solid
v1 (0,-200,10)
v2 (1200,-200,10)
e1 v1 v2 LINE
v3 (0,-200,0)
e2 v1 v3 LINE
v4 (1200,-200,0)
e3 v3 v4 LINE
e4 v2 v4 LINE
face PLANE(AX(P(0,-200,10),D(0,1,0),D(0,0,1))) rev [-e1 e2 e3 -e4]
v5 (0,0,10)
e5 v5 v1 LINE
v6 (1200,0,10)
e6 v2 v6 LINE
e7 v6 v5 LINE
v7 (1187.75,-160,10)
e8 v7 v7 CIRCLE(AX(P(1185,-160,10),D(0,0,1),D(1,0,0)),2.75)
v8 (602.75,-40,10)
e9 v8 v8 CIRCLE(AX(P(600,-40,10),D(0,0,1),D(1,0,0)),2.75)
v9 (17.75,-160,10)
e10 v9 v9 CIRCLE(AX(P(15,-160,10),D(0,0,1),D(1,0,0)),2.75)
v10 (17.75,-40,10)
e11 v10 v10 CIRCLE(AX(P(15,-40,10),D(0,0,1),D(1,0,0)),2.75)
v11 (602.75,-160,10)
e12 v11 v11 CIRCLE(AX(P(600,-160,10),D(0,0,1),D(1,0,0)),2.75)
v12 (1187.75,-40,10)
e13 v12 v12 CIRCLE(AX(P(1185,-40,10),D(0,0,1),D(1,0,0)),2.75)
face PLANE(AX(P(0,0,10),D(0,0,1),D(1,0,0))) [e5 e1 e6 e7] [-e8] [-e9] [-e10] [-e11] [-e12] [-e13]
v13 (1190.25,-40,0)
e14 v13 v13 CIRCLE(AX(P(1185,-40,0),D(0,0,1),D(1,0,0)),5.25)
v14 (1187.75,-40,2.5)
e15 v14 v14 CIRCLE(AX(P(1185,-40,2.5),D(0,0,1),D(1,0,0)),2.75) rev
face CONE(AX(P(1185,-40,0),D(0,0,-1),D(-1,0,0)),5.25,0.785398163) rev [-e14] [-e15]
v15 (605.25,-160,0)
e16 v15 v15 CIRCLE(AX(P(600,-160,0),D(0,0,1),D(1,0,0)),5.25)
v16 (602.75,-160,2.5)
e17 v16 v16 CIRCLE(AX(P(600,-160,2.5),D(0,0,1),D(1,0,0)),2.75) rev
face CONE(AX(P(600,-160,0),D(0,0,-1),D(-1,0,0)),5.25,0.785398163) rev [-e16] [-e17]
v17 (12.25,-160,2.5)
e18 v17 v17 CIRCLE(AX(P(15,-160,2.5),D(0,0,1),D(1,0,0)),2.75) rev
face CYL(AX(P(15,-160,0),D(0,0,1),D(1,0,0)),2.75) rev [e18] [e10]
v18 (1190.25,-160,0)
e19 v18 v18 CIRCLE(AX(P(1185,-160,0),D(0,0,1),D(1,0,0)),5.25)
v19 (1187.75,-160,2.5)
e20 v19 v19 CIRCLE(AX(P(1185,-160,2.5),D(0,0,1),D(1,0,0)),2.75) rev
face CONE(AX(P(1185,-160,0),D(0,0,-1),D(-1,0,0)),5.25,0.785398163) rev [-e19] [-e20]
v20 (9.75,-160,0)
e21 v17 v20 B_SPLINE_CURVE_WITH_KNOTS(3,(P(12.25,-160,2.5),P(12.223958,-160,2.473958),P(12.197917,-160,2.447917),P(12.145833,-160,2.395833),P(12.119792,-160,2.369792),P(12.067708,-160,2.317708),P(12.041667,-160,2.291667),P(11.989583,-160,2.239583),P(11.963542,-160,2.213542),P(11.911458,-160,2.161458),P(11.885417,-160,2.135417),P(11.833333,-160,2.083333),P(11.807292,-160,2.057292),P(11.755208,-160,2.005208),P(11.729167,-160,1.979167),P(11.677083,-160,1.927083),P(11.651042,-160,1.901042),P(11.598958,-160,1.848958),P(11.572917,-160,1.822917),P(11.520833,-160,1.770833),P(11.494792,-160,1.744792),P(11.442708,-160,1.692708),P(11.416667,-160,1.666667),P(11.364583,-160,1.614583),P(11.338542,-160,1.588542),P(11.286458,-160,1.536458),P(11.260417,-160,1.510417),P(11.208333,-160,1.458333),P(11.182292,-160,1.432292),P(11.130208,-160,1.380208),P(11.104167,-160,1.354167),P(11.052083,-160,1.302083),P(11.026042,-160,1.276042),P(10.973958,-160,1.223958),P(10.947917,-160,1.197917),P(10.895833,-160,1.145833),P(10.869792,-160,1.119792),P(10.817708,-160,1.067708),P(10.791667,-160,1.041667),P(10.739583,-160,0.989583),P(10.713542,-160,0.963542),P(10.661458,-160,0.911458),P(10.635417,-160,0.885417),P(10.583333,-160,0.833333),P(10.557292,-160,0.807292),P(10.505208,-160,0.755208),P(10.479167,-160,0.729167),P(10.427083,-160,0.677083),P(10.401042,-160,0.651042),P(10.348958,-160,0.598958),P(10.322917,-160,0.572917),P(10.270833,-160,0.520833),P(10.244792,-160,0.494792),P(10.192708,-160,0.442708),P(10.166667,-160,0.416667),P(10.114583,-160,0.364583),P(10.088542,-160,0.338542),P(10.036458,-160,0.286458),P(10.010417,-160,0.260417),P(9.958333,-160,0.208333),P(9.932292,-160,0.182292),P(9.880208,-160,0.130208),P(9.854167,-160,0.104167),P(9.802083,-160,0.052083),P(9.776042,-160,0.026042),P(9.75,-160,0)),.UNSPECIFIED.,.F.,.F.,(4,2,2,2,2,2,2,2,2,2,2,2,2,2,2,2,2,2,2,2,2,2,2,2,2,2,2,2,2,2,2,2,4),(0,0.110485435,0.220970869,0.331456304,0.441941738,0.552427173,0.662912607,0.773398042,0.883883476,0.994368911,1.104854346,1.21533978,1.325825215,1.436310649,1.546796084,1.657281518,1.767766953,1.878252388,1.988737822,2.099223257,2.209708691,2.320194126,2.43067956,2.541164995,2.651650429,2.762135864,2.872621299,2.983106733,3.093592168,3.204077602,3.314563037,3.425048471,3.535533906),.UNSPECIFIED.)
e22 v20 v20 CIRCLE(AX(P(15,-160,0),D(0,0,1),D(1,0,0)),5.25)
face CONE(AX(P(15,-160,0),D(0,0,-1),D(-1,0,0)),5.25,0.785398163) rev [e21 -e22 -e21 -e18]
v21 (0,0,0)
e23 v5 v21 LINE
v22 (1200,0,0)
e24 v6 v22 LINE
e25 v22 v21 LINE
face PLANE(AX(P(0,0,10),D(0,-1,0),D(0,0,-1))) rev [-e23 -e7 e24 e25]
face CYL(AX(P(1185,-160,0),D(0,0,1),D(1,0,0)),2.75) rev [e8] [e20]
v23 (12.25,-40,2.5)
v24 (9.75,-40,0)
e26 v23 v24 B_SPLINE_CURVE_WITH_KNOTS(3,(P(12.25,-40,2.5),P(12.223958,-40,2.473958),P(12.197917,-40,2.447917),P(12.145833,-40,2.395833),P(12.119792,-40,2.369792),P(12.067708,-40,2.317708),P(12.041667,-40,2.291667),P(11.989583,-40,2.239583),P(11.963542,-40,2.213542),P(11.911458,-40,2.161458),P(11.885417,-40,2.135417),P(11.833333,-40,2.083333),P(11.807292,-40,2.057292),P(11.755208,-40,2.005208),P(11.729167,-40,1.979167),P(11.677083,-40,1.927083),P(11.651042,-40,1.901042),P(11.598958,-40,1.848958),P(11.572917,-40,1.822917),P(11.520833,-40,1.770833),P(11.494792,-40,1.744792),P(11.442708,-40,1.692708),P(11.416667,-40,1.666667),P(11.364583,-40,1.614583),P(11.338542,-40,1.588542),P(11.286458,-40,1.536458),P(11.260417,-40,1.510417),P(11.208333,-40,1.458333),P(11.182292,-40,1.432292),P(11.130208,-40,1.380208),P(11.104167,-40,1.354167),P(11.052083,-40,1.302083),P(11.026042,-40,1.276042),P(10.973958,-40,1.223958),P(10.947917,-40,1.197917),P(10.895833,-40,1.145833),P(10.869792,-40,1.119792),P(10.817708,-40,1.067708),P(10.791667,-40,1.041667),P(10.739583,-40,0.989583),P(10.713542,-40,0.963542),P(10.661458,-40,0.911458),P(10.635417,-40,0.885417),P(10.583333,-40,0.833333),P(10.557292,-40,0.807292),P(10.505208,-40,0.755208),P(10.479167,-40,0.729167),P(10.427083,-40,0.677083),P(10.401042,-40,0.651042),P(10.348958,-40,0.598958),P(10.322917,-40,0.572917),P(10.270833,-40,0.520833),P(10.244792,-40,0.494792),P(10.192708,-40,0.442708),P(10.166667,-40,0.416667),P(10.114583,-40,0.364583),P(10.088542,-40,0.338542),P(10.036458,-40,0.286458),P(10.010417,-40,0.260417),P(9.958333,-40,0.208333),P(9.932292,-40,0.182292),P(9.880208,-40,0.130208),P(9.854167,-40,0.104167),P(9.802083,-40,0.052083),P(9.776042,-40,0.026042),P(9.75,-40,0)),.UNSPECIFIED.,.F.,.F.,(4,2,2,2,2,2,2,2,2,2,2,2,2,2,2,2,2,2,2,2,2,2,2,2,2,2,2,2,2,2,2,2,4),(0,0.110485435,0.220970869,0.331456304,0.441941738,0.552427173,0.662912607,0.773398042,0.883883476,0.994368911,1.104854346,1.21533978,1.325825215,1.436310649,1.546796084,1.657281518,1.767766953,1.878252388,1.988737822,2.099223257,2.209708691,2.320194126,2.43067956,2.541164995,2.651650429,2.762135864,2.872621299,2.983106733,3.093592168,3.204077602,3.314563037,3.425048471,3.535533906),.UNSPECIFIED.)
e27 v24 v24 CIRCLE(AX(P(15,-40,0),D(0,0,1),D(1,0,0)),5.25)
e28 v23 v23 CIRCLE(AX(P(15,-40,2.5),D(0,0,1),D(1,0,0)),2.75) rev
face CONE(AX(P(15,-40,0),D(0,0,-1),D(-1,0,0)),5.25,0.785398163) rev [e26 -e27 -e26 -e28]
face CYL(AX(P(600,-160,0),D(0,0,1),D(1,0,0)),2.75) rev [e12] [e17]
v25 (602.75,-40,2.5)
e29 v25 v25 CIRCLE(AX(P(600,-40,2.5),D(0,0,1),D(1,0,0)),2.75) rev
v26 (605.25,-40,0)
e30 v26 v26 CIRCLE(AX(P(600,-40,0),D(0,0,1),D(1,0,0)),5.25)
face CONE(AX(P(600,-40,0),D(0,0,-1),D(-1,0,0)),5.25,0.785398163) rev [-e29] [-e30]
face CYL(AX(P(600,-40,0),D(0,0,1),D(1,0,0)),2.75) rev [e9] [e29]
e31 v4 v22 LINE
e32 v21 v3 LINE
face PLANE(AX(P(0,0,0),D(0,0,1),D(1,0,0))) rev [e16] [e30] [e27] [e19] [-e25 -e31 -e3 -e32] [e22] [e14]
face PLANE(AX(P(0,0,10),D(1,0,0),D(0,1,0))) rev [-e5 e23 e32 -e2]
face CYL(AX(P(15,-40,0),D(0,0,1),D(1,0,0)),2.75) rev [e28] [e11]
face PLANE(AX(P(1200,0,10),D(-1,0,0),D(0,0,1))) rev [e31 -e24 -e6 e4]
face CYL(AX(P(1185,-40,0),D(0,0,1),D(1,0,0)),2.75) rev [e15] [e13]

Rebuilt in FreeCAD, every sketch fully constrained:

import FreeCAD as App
import Part
import Sketcher


def edges_at(feature, points):
    """Names of the edges that pass closest to the given points."""
    edges = feature.Shape.Edges
    near = lambda p: min(range(len(edges)), key=lambda i: edges[i].distToShape(Part.Vertex(*p))[0])
    return sorted({f"Edge{near(p) + 1}" for p in points})


def add_polygon(sketch, points):
    """Adds a closed chain of lines whose ends are joined by coincident constraints."""
    first, n = sketch.GeometryCount, len(points)
    for a, b in zip(points, points[1:] + points[:1]):
        sketch.addGeometry(Part.LineSegment(App.Vector(*a, 0), App.Vector(*b, 0)), False)
    for i in range(n):
        sketch.addConstraint(Sketcher.Constraint("Coincident", first + i, 2, first + (i + 1) % n, 1))

doc = App.newDocument("Part")
body = doc.addObject("PartDesign::Body", "Body")

sketch1 = body.newObject("Sketcher::SketchObject", "Sketch")
sketch1.AttachmentSupport = (doc.getObject("XY_Plane"), [""])
sketch1.MapMode = "FlatFace"
add_polygon(sketch1, [(0, 0), (0, -200), (1200, -200), (1200, 0)])
sketch1.addConstraint(Sketcher.Constraint("Vertical", 0))
sketch1.addConstraint(Sketcher.Constraint("Horizontal", 1))
sketch1.addConstraint(Sketcher.Constraint("Vertical", 2))
sketch1.addConstraint(Sketcher.Constraint("Horizontal", 3))
sketch1.addConstraint(Sketcher.Constraint("Coincident", 3, 2, -1, 1))
sketch1.addConstraint(Sketcher.Constraint("DistanceX", 1, 1, 1, 2, 1200.0))
sketch1.addConstraint(Sketcher.Constraint("DistanceY", 0, 2, 0, 1, 200.0))
pad1 = body.newObject("PartDesign::Pad", "Pad")
pad1.Profile = sketch1
pad1.Length = 10

sketch2 = body.newObject("Sketcher::SketchObject", "Sketch001")
sketch2.AttachmentSupport = (doc.getObject("XY_Plane"), [""])
sketch2.MapMode = "FlatFace"
sketch2.AttachmentOffset = App.Placement(App.Vector(0, 0, 10), App.Rotation())
sketch2.addGeometry(Part.Circle(App.Vector(15, -40, 0), App.Vector(0, 0, 1), 2.8), False)
sketch2.addGeometry(Part.Circle(App.Vector(15, -160, 0), App.Vector(0, 0, 1), 2.8), False)
sketch2.addGeometry(Part.Circle(App.Vector(1185, -40, 0), App.Vector(0, 0, 1), 2.8), False)
sketch2.addGeometry(Part.Circle(App.Vector(1185, -160, 0), App.Vector(0, 0, 1), 2.8), False)
sketch2.addGeometry(Part.Circle(App.Vector(600, -40, 0), App.Vector(0, 0, 1), 2.8), False)
sketch2.addGeometry(Part.Circle(App.Vector(600, -160, 0), App.Vector(0, 0, 1), 2.8), False)
sketch2.addConstraint(Sketcher.Constraint("Equal", 0, 1))
sketch2.addConstraint(Sketcher.Constraint("Equal", 1, 2))
sketch2.addConstraint(Sketcher.Constraint("Equal", 2, 3))
sketch2.addConstraint(Sketcher.Constraint("Equal", 3, 4))
sketch2.addConstraint(Sketcher.Constraint("Equal", 4, 5))
sketch2.addConstraint(Sketcher.Constraint("Horizontal", 0, 3, 2, 3))
sketch2.addConstraint(Sketcher.Constraint("Horizontal", 1, 3, 3, 3))
sketch2.addConstraint(Sketcher.Constraint("Horizontal", 2, 3, 4, 3))
sketch2.addConstraint(Sketcher.Constraint("Horizontal", 3, 3, 5, 3))
sketch2.addConstraint(Sketcher.Constraint("Vertical", 0, 3, 1, 3))
sketch2.addConstraint(Sketcher.Constraint("Vertical", 2, 3, 3, 3))
sketch2.addConstraint(Sketcher.Constraint("Vertical", 4, 3, 5, 3))
sketch2.addConstraint(Sketcher.Constraint("Diameter", 0, 5.5))
sketch2.addConstraint(Sketcher.Constraint("DistanceX", -1, 1, 0, 3, 15.0))
sketch2.addConstraint(Sketcher.Constraint("DistanceY", 0, 3, -1, 1, 40.0))
sketch2.addConstraint(Sketcher.Constraint("DistanceY", 1, 3, -1, 1, 160.0))
sketch2.addConstraint(Sketcher.Constraint("DistanceX", -1, 1, 2, 3, 1185.0))
sketch2.addConstraint(Sketcher.Constraint("DistanceX", -1, 1, 4, 3, 600.0))
pocket1 = body.newObject("PartDesign::Pocket", "Pocket")
pocket1.Profile = sketch2
pocket1.Length = 10
doc.recompute()

chamfer = body.newObject("PartDesign::Chamfer", "Chamfer")
chamfer.Base = (pocket1, edges_at(pocket1, [
    (12.25, -40, 0),
    (597.25, -160, 0),
    (597.25, -40, 0),
    (1182.25, -160, 0),
    (1182.25, -40, 0),
    (12.25, -160, 0),
]))
chamfer.Size = 2.5

doc.recompute()
